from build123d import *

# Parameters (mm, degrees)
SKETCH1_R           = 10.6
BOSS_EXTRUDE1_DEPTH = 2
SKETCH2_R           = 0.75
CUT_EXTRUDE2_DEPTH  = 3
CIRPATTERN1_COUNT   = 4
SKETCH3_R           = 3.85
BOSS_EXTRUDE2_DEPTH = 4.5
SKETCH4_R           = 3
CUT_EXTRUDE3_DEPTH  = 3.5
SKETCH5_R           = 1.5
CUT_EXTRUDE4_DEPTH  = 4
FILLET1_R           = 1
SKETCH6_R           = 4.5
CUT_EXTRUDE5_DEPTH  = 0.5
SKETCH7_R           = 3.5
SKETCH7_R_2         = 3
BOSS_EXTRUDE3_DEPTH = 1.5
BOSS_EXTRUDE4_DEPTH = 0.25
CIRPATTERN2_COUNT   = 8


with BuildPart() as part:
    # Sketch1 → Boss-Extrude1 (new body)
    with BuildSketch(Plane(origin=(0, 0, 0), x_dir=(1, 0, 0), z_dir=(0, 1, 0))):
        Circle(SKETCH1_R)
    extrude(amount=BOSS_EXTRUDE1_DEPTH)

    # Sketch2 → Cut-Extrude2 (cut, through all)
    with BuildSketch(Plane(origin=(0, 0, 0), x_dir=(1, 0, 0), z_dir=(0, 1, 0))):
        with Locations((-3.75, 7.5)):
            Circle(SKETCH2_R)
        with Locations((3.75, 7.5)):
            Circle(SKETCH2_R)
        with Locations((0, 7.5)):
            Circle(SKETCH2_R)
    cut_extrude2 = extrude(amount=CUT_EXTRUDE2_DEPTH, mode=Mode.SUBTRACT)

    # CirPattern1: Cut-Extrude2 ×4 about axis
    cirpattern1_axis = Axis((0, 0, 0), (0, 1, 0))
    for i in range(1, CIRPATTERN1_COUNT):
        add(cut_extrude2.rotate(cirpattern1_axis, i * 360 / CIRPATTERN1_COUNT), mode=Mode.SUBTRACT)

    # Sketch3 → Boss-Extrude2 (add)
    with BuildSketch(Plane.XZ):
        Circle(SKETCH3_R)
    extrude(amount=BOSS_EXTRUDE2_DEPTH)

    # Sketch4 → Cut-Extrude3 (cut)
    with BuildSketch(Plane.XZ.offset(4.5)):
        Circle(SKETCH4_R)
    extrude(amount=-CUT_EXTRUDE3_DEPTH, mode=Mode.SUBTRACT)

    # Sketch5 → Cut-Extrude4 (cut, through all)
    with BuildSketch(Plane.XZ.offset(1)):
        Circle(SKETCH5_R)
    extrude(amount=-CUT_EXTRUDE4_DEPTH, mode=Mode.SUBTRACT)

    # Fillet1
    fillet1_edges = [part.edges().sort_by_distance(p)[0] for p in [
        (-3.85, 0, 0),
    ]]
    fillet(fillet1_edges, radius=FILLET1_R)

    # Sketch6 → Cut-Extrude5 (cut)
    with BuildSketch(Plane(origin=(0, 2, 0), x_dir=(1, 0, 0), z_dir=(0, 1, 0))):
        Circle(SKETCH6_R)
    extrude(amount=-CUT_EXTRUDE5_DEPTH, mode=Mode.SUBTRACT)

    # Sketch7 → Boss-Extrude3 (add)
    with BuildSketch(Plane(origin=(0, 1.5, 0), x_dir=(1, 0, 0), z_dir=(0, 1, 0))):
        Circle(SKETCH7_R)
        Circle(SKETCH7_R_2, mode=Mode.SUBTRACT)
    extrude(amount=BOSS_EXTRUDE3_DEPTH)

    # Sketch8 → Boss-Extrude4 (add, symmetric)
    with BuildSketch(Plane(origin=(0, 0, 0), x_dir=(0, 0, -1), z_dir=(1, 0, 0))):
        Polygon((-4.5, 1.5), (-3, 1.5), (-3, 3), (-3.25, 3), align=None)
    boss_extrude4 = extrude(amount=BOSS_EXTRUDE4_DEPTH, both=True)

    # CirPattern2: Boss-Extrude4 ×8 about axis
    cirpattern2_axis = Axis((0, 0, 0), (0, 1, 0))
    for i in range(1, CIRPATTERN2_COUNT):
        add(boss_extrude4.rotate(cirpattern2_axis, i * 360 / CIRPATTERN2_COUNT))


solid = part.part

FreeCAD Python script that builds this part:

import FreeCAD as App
import Part
import Sketcher


def edges_at(feature, points):
    """Names of the edges that pass closest to the given points."""
    edges = feature.Shape.Edges
    near = lambda p: min(range(len(edges)), key=lambda i: edges[i].distToShape(Part.Vertex(*p))[0])
    return sorted({f"Edge{near(p) + 1}" for p in points})

doc = App.newDocument("Part")
body = doc.addObject("PartDesign::Body", "Body")

# Sketch on XZ plane
sketch1 = body.newObject("Sketcher::SketchObject", "Sketch")
sketch1.AttachmentSupport = (doc.getObject("XZ_Plane"), [""])
sketch1.MapMode = "FlatFace"
sketch1.addGeometry(Part.Circle(App.Vector(0, 0, 0), App.Vector(0, 0, 1), 11), False)
sketch1.addConstraint([
    Sketcher.Constraint("Coincident", 0, 3, -1, 1),
    Sketcher.Constraint("Diameter", 0, 21.2),
])
pad1 = body.newObject("PartDesign::Pad", "Pad")
pad1.Profile = sketch1
pad1.Length = 2
pad1.Reversed = True

# Sketch on XZ plane
sketch2 = body.newObject("Sketcher::SketchObject", "Sketch001")
sketch2.AttachmentSupport = (doc.getObject("XZ_Plane"), [""])
sketch2.MapMode = "FlatFace"
sketch2.addGeometry([
    Part.Circle(App.Vector(-3.8, -7.5, 0), App.Vector(0, 0, 1), 0.8),
    Part.Circle(App.Vector(3.8, -7.5, 0), App.Vector(0, 0, 1), 0.8),
    Part.Circle(App.Vector(0, -7.5, 0), App.Vector(0, 0, 1), 0.8),
], False)
sketch2.addConstraint([
    Sketcher.Constraint("Equal", 0, 1),
    Sketcher.Constraint("Equal", 1, 2),
    Sketcher.Constraint("Symmetric", 0, 3, 1, 3, -2),
    Sketcher.Constraint("PointOnObject", 2, 3, -2),
    Sketcher.Constraint("Horizontal", 1, 3, 2, 3),
    Sketcher.Constraint("Diameter", 0, 1.5),
    Sketcher.Constraint("DistanceY", 0, 3, -1, 1, 7.5),
    Sketcher.Constraint("DistanceX", 0, 3, 1, 3, 7.5),
])
pocket1 = body.newObject("PartDesign::Pocket", "Pocket")
pocket1.Profile = sketch2
pocket1.Type = "ThroughAll"
doc.recompute()

polarpattern = body.newObject("PartDesign::PolarPattern", "PolarPattern")
polarpattern.Originals = [pocket1]
polarpattern.Axis = (doc.getObject("Y_Axis"), [""])
polarpattern.Angle = 360
polarpattern.Occurrences = 4
body.Tip = polarpattern

# Sketch on XZ plane
sketch3 = body.newObject("Sketcher::SketchObject", "Sketch002")
sketch3.AttachmentSupport = (doc.getObject("XZ_Plane"), [""])
sketch3.MapMode = "FlatFace"
sketch3.addGeometry(Part.Circle(App.Vector(0, 0, 0), App.Vector(0, 0, 1), 3.9), False)
sketch3.addConstraint([
    Sketcher.Constraint("Coincident", 0, 3, -1, 1),
    Sketcher.Constraint("Diameter", 0, 7.7),
])
pad2 = body.newObject("PartDesign::Pad", "Pad001")
pad2.Profile = sketch3
pad2.Length = 4.5

# Sketch on XZ plane
sketch4 = body.newObject("Sketcher::SketchObject", "Sketch003")
sketch4.AttachmentSupport = (doc.getObject("XZ_Plane"), [""])
sketch4.MapMode = "FlatFace"
sketch4.AttachmentOffset = App.Placement(App.Vector(0, 0, 4.5), App.Rotation())
sketch4.addGeometry(Part.Circle(App.Vector(0, 0, 0), App.Vector(0, 0, 1), 3), False)
sketch4.addConstraint([
    Sketcher.Constraint("Coincident", 0, 3, -1, 1),
    Sketcher.Constraint("Diameter", 0, 6.0),
])
pocket2 = body.newObject("PartDesign::Pocket", "Pocket001")
pocket2.Profile = sketch4
pocket2.Length = 3.5

# Sketch on XZ plane
sketch5 = body.newObject("Sketcher::SketchObject", "Sketch004")
sketch5.AttachmentSupport = (doc.getObject("XZ_Plane"), [""])
sketch5.MapMode = "FlatFace"
sketch5.AttachmentOffset = App.Placement(App.Vector(0, 0, 1), App.Rotation())
sketch5.addGeometry(Part.Circle(App.Vector(0, 0, 0), App.Vector(0, 0, 1), 1.5), False)
sketch5.addConstraint([
    Sketcher.Constraint("Coincident", 0, 3, -1, 1),
    Sketcher.Constraint("Diameter", 0, 3.0),
])
pocket3 = body.newObject("PartDesign::Pocket", "Pocket002")
pocket3.Profile = sketch5
pocket3.Type = "ThroughAll"
doc.recompute()

fillet = body.newObject("PartDesign::Fillet", "Fillet")
fillet.Base = (pocket3, edges_at(pocket3, [(-3.85, 0, 0)]))
fillet.Radius = 1

# Sketch on XZ plane
sketch6 = body.newObject("Sketcher::SketchObject", "Sketch005")
sketch6.AttachmentSupport = (doc.getObject("XZ_Plane"), [""])
sketch6.MapMode = "FlatFace"
sketch6.AttachmentOffset = App.Placement(App.Vector(0, 0, -2), App.Rotation())
sketch6.addGeometry(Part.Circle(App.Vector(0, 0, 0), App.Vector(0, 0, 1), 4.5), False)
sketch6.addConstraint([
    Sketcher.Constraint("Coincident", 0, 3, -1, 1),
    Sketcher.Constraint("Diameter", 0, 9.0),
])
pocket4 = body.newObject("PartDesign::Pocket", "Pocket003")
pocket4.Profile = sketch6
pocket4.Length = 0.5
pocket4.Reversed = True

# Sketch on XZ plane
sketch7 = body.newObject("Sketcher::SketchObject", "Sketch006")
sketch7.AttachmentSupport = (doc.getObject("XZ_Plane"), [""])
sketch7.MapMode = "FlatFace"
sketch7.AttachmentOffset = App.Placement(App.Vector(0, 0, -1.5), App.Rotation())
sketch7.addGeometry([
    Part.Circle(App.Vector(0, 0, 0), App.Vector(0, 0, 1), 3.5),
    Part.Circle(App.Vector(0, 0, 0), App.Vector(0, 0, 1), 3),
], False)
sketch7.addConstraint([
    Sketcher.Constraint("Coincident", 0, 3, -1, 1),
    Sketcher.Constraint("Coincident", 1, 3, -1, 1),
    Sketcher.Constraint("Diameter", 0, 7.0),
    Sketcher.Constraint("Diameter", 1, 6.0),
])
pad3 = body.newObject("PartDesign::Pad", "Pad002")
pad3.Profile = sketch7
pad3.Length = 1.5
pad3.Reversed = True

# Sketch on YZ plane
sketch8 = body.newObject("Sketcher::SketchObject", "Sketch007")
sketch8.AttachmentSupport = (doc.getObject("YZ_Plane"), [""])
sketch8.MapMode = "FlatFace"
sketch8.addGeometry([
    Part.LineSegment(App.Vector(1.5, 4.5, 0), App.Vector(1.5, 3, 0)),
    Part.LineSegment(App.Vector(1.5, 3, 0), App.Vector(3, 3, 0)),
    Part.LineSegment(App.Vector(3, 3, 0), App.Vector(3, 3.25, 0)),
    Part.LineSegment(App.Vector(3, 3.25, 0), App.Vector(1.5, 4.5, 0)),
], False)
sketch8.addConstraint([
    Sketcher.Constraint("Coincident", 0, 2, 1, 1),
    Sketcher.Constraint("Coincident", 1, 2, 2, 1),
    Sketcher.Constraint("Coincident", 2, 2, 3, 1),
    Sketcher.Constraint("Coincident", 3, 2, 0, 1),
    Sketcher.Constraint("Vertical", 0),
    Sketcher.Constraint("Horizontal", 1),
    Sketcher.Constraint("Vertical", 2),
    Sketcher.Constraint("Equal", 1, 0),
    Sketcher.Constraint("DistanceX", 1, 1, 1, 2, 1.5),
    Sketcher.Constraint("DistanceY", -1, 1, 0, 2, 3.0),
    Sketcher.Constraint("DistanceX", -1, 1, 1, 2, 3.0),
    Sketcher.Constraint("DistanceY", 2, 1, 2, 2, 0.25),
])
pad4 = body.newObject("PartDesign::Pad", "Pad003")
pad4.Profile = sketch8
pad4.Length = 0.5
pad4.Midplane = True
doc.recompute()

polarpattern2 = body.newObject("PartDesign::PolarPattern", "PolarPattern001")
polarpattern2.Originals = [pad4]
polarpattern2.Axis = (doc.getObject("Y_Axis"), [""])
polarpattern2.Angle = 360
polarpattern2.Occurrences = 8
body.Tip = polarpattern2

doc.recompute()
